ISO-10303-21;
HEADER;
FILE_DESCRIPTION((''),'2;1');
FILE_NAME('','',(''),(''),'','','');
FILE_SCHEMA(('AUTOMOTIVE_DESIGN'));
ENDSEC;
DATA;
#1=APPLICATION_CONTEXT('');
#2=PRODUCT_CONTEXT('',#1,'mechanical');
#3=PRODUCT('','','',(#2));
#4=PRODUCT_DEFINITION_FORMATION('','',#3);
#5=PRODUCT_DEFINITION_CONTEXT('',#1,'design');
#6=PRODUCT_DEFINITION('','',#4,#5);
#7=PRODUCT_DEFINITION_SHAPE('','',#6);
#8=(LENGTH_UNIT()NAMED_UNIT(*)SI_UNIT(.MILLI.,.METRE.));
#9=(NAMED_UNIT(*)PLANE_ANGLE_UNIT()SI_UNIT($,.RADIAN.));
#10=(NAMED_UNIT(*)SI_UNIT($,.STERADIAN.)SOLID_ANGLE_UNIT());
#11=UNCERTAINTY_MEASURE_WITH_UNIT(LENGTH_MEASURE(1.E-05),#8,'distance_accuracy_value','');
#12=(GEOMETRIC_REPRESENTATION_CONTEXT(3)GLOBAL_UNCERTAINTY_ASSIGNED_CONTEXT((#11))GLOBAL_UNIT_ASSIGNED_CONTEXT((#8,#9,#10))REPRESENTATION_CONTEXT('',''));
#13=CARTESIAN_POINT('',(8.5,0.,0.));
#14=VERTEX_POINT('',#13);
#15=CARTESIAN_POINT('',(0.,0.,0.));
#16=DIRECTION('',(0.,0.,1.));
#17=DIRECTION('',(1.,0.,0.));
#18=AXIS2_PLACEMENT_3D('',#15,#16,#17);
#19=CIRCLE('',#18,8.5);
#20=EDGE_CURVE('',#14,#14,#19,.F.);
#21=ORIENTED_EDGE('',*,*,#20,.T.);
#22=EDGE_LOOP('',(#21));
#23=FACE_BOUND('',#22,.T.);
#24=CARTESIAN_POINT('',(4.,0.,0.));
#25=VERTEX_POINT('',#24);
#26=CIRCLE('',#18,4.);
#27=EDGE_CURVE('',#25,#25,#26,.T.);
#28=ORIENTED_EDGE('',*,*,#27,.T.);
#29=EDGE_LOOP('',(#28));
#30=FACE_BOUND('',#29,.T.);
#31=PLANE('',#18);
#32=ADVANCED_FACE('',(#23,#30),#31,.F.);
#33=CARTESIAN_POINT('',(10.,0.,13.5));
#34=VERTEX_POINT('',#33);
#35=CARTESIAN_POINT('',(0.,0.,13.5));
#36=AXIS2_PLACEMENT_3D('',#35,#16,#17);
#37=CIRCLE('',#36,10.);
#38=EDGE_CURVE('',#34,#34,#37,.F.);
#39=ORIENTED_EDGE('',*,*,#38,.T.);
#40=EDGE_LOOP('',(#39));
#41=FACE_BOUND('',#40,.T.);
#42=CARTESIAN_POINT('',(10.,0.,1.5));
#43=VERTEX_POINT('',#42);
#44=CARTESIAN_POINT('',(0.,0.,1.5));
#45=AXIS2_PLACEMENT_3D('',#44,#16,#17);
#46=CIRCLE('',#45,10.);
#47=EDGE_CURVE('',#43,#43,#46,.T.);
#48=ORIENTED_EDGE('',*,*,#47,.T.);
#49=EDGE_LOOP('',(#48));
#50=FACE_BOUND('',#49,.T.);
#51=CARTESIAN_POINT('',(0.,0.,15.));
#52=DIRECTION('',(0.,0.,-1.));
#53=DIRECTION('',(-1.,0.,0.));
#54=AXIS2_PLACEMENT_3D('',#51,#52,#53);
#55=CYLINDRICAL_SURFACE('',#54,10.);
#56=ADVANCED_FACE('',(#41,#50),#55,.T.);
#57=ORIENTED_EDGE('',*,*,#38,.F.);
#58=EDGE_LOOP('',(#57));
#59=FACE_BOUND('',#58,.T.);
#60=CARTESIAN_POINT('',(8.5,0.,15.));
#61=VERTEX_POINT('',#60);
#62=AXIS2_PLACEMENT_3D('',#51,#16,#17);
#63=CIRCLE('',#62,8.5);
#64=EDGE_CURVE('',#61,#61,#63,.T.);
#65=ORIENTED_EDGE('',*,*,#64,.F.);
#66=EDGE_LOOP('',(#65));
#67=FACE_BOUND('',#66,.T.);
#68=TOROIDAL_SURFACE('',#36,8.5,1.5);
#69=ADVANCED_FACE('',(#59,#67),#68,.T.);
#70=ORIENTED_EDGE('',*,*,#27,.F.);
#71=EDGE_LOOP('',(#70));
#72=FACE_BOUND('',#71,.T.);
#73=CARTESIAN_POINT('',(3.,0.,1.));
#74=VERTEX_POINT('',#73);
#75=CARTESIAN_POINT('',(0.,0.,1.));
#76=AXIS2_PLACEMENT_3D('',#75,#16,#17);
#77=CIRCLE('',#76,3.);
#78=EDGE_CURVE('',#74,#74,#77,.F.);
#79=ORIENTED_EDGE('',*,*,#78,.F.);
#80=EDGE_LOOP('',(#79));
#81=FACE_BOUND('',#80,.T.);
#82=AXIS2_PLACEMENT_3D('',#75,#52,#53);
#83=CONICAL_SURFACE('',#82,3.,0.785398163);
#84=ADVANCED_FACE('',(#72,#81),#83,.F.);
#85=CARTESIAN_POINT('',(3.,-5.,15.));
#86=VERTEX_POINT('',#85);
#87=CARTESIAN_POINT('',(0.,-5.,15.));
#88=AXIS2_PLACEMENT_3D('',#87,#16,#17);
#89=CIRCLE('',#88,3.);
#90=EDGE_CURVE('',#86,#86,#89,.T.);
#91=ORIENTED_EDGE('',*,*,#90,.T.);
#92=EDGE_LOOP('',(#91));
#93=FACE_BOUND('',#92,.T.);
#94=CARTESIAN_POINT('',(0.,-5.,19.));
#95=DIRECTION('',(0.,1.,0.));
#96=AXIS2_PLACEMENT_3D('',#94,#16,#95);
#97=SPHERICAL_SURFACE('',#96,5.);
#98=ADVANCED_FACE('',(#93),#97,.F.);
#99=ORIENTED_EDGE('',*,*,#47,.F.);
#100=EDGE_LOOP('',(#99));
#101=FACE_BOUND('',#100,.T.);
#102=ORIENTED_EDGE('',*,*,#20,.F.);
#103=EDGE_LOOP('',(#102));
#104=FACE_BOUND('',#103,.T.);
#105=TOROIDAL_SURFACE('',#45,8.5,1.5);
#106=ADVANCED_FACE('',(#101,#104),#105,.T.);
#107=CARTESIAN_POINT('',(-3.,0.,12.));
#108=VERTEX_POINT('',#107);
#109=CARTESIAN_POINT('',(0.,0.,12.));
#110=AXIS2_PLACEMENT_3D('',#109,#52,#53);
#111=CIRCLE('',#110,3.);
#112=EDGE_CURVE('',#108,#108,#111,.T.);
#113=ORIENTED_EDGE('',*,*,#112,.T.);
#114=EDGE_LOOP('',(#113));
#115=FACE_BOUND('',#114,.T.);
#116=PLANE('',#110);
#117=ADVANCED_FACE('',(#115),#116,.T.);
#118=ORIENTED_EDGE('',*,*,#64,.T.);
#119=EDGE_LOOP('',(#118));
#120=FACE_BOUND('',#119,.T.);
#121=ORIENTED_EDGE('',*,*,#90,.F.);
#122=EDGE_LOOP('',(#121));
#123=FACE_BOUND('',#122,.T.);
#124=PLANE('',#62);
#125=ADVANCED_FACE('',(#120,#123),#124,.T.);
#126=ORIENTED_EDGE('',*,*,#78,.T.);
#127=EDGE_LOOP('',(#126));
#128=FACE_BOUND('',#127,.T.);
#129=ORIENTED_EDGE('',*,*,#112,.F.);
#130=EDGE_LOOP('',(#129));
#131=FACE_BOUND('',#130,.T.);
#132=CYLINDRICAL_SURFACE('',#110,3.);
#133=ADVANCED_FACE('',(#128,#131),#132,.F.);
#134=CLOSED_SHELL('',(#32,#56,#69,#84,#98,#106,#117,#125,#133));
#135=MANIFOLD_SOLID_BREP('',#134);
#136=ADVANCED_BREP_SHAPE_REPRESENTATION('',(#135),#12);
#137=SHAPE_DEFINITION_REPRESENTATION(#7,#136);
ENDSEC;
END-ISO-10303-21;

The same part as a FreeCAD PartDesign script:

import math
import FreeCAD as App
import Part
import Sketcher

V = App.Vector


def edges_at(feature, points):
    """Names of the edges that pass closest to the given points."""
    edges = feature.Shape.Edges
    near = lambda p: min(range(len(edges)), key=lambda i: edges[i].distToShape(Part.Vertex(*p))[0])
    return sorted({f"Edge{near(p) + 1}" for p in points})

doc = App.newDocument("Part")
body = doc.addObject("PartDesign::Body", "Body")

# Sketch on XY plane
sketch1 = doc.addObject("Sketcher::SketchObject", "Sketch")
body.addObject(sketch1)
sketch1.AttachmentSupport = (doc.XY_Plane, [""])
sketch1.MapMode = "FlatFace"
sketch1.addGeometry(Part.Circle(V(0, 0, 0), V(0, 0, 1), 10), False)
sketch1.addConstraint([
    Sketcher.Constraint("Coincident", 0, 3, -1, 1),
    Sketcher.Constraint("Diameter", 0, 20.0),
])
pad1 = doc.addObject("PartDesign::Pad", "Pad")
body.addObject(pad1)
pad1.Profile = sketch1
pad1.Length = 15
doc.recompute()

fillet = doc.addObject("PartDesign::Fillet", "Fillet")
body.addObject(fillet)
fillet.Base = (pad1, edges_at(pad1, [(-10, 0, 0), (-10, 0, 15)]))
fillet.Radius = 1.5

# Sketch on XY plane
sketch2 = doc.addObject("Sketcher::SketchObject", "Sketch001")
body.addObject(sketch2)
sketch2.AttachmentSupport = (doc.XY_Plane, [""])
sketch2.MapMode = "FlatFace"
sketch2.addGeometry(Part.Circle(V(0, 0, 0), V(0, 0, 1), 3), False)
sketch2.addConstraint([
    Sketcher.Constraint("Coincident", 0, 3, -1, 1),
    Sketcher.Constraint("Diameter", 0, 6.0),
])
pocket1 = doc.addObject("PartDesign::Pocket", "Pocket")
body.addObject(pocket1)
pocket1.Profile = sketch2
pocket1.Length = 12
pocket1.Reversed = True
doc.recompute()

chamfer = doc.addObject("PartDesign::Chamfer", "Chamfer")
body.addObject(chamfer)
chamfer.Base = (pocket1, edges_at(pocket1, [(3, 0, 0)]))
chamfer.Size = 1

# Sketch on YZ plane
sketch3 = doc.addObject("Sketcher::SketchObject", "Sketch002")
body.addObject(sketch3)
sketch3.AttachmentSupport = (doc.YZ_Plane, [""])
sketch3.MapMode = "FlatFace"
sketch3.addGeometry([
    Part.LineSegment(V(-5, 14, 0), V(-5, 24, 0)),
    Part.ArcOfCircle(Part.Circle(V(-5, 19, 0), V(0, 0, 1), 5), math.radians(90), math.radians(270)),
], False)
sketch3.addGeometry(Part.LineSegment(V(-5, 24, 0), V(-5, 14, 0)), True)  # axis
sketch3.addConstraint([
    Sketcher.Constraint("Coincident", 0, 1, 1, 2),
    Sketcher.Constraint("Coincident", 1, 1, 0, 2),
    Sketcher.Constraint("Vertical", 0),
    Sketcher.Constraint("Vertical", 2),
    Sketcher.Constraint("Coincident", 2, 1, 1, 1),
    Sketcher.Constraint("Vertical", 1, 3, 0, 1),
    Sketcher.Constraint("Equal", 0, 2),
    Sketcher.Constraint("Radius", 1, 5.0),
    Sketcher.Constraint("DistanceX", 1, 3, -1, 1, 5.0),
    Sketcher.Constraint("DistanceY", -1, 1, 1, 3, 19.0),
])
groove = doc.addObject("PartDesign::Groove", "Groove")
body.addObject(groove)
groove.Profile = sketch3
groove.ReferenceAxis = (sketch3, ["Axis0"])
groove.Angle = 360

doc.recompute()
